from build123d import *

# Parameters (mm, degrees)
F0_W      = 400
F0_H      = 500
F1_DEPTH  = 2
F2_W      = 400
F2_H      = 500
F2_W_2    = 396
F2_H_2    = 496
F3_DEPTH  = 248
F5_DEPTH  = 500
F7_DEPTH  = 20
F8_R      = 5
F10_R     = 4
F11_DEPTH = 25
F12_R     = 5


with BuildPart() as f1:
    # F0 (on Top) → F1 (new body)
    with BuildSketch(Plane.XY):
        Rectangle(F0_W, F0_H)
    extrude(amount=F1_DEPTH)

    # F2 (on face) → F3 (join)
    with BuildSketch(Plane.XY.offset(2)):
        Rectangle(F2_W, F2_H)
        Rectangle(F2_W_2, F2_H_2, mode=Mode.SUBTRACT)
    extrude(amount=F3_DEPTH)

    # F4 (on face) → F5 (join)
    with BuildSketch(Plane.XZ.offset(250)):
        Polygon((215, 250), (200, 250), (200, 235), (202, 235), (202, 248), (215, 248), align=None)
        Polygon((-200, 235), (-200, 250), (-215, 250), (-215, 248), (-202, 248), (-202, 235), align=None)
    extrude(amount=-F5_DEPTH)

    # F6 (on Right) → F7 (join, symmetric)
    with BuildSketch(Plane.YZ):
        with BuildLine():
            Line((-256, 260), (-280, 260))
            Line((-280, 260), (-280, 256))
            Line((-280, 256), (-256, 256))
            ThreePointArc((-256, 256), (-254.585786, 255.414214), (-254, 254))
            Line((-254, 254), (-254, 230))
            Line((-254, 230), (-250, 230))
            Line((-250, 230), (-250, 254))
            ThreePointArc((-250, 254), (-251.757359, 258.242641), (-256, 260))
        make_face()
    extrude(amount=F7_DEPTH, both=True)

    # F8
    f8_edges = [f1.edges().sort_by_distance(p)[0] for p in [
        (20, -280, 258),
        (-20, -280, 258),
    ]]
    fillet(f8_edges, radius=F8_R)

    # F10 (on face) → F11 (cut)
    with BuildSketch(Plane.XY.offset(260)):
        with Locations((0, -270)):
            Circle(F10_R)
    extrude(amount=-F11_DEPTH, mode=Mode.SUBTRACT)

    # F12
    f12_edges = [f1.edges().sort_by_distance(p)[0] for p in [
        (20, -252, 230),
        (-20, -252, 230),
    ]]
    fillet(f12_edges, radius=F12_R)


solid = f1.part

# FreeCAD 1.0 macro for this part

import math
import FreeCAD as App
import Part
import Sketcher

V = App.Vector


def edges_at(feature, points):
    """Names of the edges that pass closest to the given points."""
    edges = feature.Shape.Edges
    near = lambda p: min(range(len(edges)), key=lambda i: edges[i].distToShape(Part.Vertex(*p))[0])
    return sorted({f"Edge{near(p) + 1}" for p in points})


def add_polygon(sketch, points):
    """Adds a closed chain of lines whose ends are joined by coincident constraints."""
    first, n = sketch.GeometryCount, len(points)
    for a, b in zip(points, points[1:] + points[:1]):
        sketch.addGeometry(Part.LineSegment(App.Vector(*a, 0), App.Vector(*b, 0)), False)
    for i in range(n):
        sketch.addConstraint(Sketcher.Constraint("Coincident", first + i, 2, first + (i + 1) % n, 1))

doc = App.newDocument("Part")
body = doc.addObject("PartDesign::Body", "Body")

# Sketch on XY plane
sketch1 = body.newObject("Sketcher::SketchObject", "Sketch")
sketch1.AttachmentSupport = (doc.getObject("XY_Plane"), [""])
sketch1.MapMode = "FlatFace"
add_polygon(sketch1, [(-200, 250), (-200, -250), (200, -250), (200, 250)])  # lines 0-3
sketch1.addConstraint([
    Sketcher.Constraint("Vertical", 0),
    Sketcher.Constraint("Horizontal", 1),
    Sketcher.Constraint("Vertical", 2),
    Sketcher.Constraint("Horizontal", 3),
    Sketcher.Constraint("Symmetric", 0, 2, 2, 2, -1, 1),
    Sketcher.Constraint("DistanceX", 1, 1, 1, 2, 400.0),
    Sketcher.Constraint("DistanceY", 0, 2, 0, 1, 500.0),
])
pad1 = body.newObject("PartDesign::Pad", "Pad")
pad1.Profile = sketch1
pad1.Length = 2

# Sketch on XY plane
sketch2 = body.newObject("Sketcher::SketchObject", "Sketch001")
sketch2.AttachmentSupport = (doc.getObject("XY_Plane"), [""])
sketch2.MapMode = "FlatFace"
sketch2.AttachmentOffset = App.Placement(V(0, 0, 2), App.Rotation())
add_polygon(sketch2, [(-200, 250), (-200, -250), (200, -250), (200, 250)])  # lines 0-3
add_polygon(sketch2, [(198, -248), (-198, -248), (-198, 248), (198, 248)])  # lines 4-7
sketch2.addConstraint([
    Sketcher.Constraint("Vertical", 0),
    Sketcher.Constraint("Horizontal", 1),
    Sketcher.Constraint("Vertical", 2),
    Sketcher.Constraint("Horizontal", 3),
    Sketcher.Constraint("Horizontal", 4),
    Sketcher.Constraint("Vertical", 5),
    Sketcher.Constraint("Horizontal", 6),
    Sketcher.Constraint("Vertical", 7),
    Sketcher.Constraint("Symmetric", 0, 2, 2, 2, -1, 1),
    Sketcher.Constraint("Symmetric", 4, 2, 6, 2, -1, 1),
    Sketcher.Constraint("DistanceX", 1, 1, 1, 2, 400.0),
    Sketcher.Constraint("DistanceX", 4, 2, 4, 1, 396.0),
    Sketcher.Constraint("DistanceY", 0, 2, 0, 1, 500.0),
    Sketcher.Constraint("DistanceY", 5, 1, 5, 2, 496.0),
])
pad2 = body.newObject("PartDesign::Pad", "Pad001")
pad2.Profile = sketch2
pad2.Length = 248

# Sketch on XZ plane
sketch3 = body.newObject("Sketcher::SketchObject", "Sketch002")
sketch3.AttachmentSupport = (doc.getObject("XZ_Plane"), [""])
sketch3.MapMode = "FlatFace"
sketch3.AttachmentOffset = App.Placement(V(0, 0, 250), App.Rotation())
add_polygon(sketch3, [(215, 250), (200, 250), (200, 235), (202, 235), (202, 248), (215, 248)])  # lines 0-5
add_polygon(sketch3, [(-200, 235), (-200, 250), (-215, 250), (-215, 248), (-202, 248), (-202, 235)])  # lines 6-11
sketch3.addConstraint([
    Sketcher.Constraint("Horizontal", 0),
    Sketcher.Constraint("Vertical", 1),
    Sketcher.Constraint("Horizontal", 2),
    Sketcher.Constraint("Vertical", 3),
    Sketcher.Constraint("Horizontal", 4),
    Sketcher.Constraint("Vertical", 5),
    Sketcher.Constraint("Vertical", 6),
    Sketcher.Constraint("Horizontal", 7),
    Sketcher.Constraint("Vertical", 8),
    Sketcher.Constraint("Horizontal", 9),
    Sketcher.Constraint("Vertical", 10),
    Sketcher.Constraint("Horizontal", 11),
    Sketcher.Constraint("Symmetric", 0, 2, 6, 2, -2),
    Sketcher.Constraint("Symmetric", 4, 2, 8, 2, -2),
    Sketcher.Constraint("Symmetric", 2, 2, 10, 2, -2),
    Sketcher.Constraint("Equal", 7, 1),
    Sketcher.Constraint("Equal", 9, 3),
    Sketcher.Constraint("DistanceX", 0, 2, 0, 1, 15.0),
    Sketcher.Constraint("DistanceX", 2, 1, 2, 2, 2.0),
    Sketcher.Constraint("DistanceX", -1, 1, 0, 2, 200.0),
    Sketcher.Constraint("DistanceY", -1, 1, 0, 2, 250.0),
])
pad3 = body.newObject("PartDesign::Pad", "Pad002")
pad3.Profile = sketch3
pad3.Length = 500
pad3.Reversed = True

# Sketch on YZ plane
sketch4 = body.newObject("Sketcher::SketchObject", "Sketch003")
sketch4.AttachmentSupport = (doc.getObject("YZ_Plane"), [""])
sketch4.MapMode = "FlatFace"
sketch4.addGeometry([
    Part.LineSegment(V(-256, 260, 0), V(-280, 260, 0)),  # 0
    Part.LineSegment(V(-280, 260, 0), V(-280, 256, 0)),  # 1
    Part.LineSegment(V(-280, 256, 0), V(-256, 256, 0)),  # 2
    Part.ArcOfCircle(Part.Circle(V(-256, 254, 0), V(0, 0, 1), 2), math.radians(0), math.radians(90)),  # 3
    Part.LineSegment(V(-254, 254, 0), V(-254, 230, 0)),  # 4
    Part.LineSegment(V(-254, 230, 0), V(-250, 230, 0)),  # 5
    Part.LineSegment(V(-250, 230, 0), V(-250, 254, 0)),  # 6
    Part.ArcOfCircle(Part.Circle(V(-256, 254, 0), V(0, 0, 1), 6), math.radians(0), math.radians(90)),  # 7
], False)
sketch4.addConstraint([
    Sketcher.Constraint("Coincident", 0, 2, 1, 1),
    Sketcher.Constraint("Coincident", 1, 2, 2, 1),
    Sketcher.Constraint("Tangent", 2, 2, 3, 2),
    Sketcher.Constraint("Tangent", 3, 1, 4, 1),
    Sketcher.Constraint("Coincident", 4, 2, 5, 1),
    Sketcher.Constraint("Coincident", 5, 2, 6, 1),
    Sketcher.Constraint("Tangent", 6, 2, 7, 1),
    Sketcher.Constraint("Tangent", 7, 2, 0, 1),
    Sketcher.Constraint("Horizontal", 0),
    Sketcher.Constraint("Vertical", 1),
    Sketcher.Constraint("Horizontal", 2),
    Sketcher.Constraint("Vertical", 4),
    Sketcher.Constraint("Horizontal", 5),
    Sketcher.Constraint("Vertical", 6),
    Sketcher.Constraint("Coincident", 7, 3, 3, 3),
    Sketcher.Constraint("Equal", 2, 4),
    Sketcher.Constraint("Radius", 3, 1.999999),
    Sketcher.Constraint("Radius", 7, 5.999999),
    Sketcher.Constraint("DistanceX", 0, 2, 0, 1, 24.0),
    Sketcher.Constraint("DistanceX", 3, 3, -1, 1, 255.999999),
    Sketcher.Constraint("DistanceY", -1, 1, 3, 3, 254.000001),
])
pad4 = body.newObject("PartDesign::Pad", "Pad003")
pad4.Profile = sketch4
pad4.Length = 40
pad4.Midplane = True
doc.recompute()

fillet = body.newObject("PartDesign::Fillet", "Fillet")
fillet.Base = (pad4, edges_at(pad4, [(20, -280, 258), (-20, -280, 258)]))
fillet.Radius = 5

# Sketch on XY plane
sketch5 = body.newObject("Sketcher::SketchObject", "Sketch004")
sketch5.AttachmentSupport = (doc.getObject("XY_Plane"), [""])
sketch5.MapMode = "FlatFace"
sketch5.AttachmentOffset = App.Placement(V(0, 0, 260), App.Rotation())
sketch5.addGeometry(Part.Circle(V(0, -270, 0), V(0, 0, 1), 4), False)
sketch5.addConstraint([
    Sketcher.Constraint("PointOnObject", 0, 3, -2),
    Sketcher.Constraint("Diameter", 0, 8.0),
    Sketcher.Constraint("DistanceY", 0, 3, -1, 1, 270.0),
])
pocket1 = body.newObject("PartDesign::Pocket", "Pocket")
pocket1.Profile = sketch5
pocket1.Length = 25
doc.recompute()

fillet2 = body.newObject("PartDesign::Fillet", "Fillet001")
fillet2.Base = (pocket1, edges_at(pocket1, [(20, -252, 230), (-20, -252, 230)]))
fillet2.Radius = 5

doc.recompute()
